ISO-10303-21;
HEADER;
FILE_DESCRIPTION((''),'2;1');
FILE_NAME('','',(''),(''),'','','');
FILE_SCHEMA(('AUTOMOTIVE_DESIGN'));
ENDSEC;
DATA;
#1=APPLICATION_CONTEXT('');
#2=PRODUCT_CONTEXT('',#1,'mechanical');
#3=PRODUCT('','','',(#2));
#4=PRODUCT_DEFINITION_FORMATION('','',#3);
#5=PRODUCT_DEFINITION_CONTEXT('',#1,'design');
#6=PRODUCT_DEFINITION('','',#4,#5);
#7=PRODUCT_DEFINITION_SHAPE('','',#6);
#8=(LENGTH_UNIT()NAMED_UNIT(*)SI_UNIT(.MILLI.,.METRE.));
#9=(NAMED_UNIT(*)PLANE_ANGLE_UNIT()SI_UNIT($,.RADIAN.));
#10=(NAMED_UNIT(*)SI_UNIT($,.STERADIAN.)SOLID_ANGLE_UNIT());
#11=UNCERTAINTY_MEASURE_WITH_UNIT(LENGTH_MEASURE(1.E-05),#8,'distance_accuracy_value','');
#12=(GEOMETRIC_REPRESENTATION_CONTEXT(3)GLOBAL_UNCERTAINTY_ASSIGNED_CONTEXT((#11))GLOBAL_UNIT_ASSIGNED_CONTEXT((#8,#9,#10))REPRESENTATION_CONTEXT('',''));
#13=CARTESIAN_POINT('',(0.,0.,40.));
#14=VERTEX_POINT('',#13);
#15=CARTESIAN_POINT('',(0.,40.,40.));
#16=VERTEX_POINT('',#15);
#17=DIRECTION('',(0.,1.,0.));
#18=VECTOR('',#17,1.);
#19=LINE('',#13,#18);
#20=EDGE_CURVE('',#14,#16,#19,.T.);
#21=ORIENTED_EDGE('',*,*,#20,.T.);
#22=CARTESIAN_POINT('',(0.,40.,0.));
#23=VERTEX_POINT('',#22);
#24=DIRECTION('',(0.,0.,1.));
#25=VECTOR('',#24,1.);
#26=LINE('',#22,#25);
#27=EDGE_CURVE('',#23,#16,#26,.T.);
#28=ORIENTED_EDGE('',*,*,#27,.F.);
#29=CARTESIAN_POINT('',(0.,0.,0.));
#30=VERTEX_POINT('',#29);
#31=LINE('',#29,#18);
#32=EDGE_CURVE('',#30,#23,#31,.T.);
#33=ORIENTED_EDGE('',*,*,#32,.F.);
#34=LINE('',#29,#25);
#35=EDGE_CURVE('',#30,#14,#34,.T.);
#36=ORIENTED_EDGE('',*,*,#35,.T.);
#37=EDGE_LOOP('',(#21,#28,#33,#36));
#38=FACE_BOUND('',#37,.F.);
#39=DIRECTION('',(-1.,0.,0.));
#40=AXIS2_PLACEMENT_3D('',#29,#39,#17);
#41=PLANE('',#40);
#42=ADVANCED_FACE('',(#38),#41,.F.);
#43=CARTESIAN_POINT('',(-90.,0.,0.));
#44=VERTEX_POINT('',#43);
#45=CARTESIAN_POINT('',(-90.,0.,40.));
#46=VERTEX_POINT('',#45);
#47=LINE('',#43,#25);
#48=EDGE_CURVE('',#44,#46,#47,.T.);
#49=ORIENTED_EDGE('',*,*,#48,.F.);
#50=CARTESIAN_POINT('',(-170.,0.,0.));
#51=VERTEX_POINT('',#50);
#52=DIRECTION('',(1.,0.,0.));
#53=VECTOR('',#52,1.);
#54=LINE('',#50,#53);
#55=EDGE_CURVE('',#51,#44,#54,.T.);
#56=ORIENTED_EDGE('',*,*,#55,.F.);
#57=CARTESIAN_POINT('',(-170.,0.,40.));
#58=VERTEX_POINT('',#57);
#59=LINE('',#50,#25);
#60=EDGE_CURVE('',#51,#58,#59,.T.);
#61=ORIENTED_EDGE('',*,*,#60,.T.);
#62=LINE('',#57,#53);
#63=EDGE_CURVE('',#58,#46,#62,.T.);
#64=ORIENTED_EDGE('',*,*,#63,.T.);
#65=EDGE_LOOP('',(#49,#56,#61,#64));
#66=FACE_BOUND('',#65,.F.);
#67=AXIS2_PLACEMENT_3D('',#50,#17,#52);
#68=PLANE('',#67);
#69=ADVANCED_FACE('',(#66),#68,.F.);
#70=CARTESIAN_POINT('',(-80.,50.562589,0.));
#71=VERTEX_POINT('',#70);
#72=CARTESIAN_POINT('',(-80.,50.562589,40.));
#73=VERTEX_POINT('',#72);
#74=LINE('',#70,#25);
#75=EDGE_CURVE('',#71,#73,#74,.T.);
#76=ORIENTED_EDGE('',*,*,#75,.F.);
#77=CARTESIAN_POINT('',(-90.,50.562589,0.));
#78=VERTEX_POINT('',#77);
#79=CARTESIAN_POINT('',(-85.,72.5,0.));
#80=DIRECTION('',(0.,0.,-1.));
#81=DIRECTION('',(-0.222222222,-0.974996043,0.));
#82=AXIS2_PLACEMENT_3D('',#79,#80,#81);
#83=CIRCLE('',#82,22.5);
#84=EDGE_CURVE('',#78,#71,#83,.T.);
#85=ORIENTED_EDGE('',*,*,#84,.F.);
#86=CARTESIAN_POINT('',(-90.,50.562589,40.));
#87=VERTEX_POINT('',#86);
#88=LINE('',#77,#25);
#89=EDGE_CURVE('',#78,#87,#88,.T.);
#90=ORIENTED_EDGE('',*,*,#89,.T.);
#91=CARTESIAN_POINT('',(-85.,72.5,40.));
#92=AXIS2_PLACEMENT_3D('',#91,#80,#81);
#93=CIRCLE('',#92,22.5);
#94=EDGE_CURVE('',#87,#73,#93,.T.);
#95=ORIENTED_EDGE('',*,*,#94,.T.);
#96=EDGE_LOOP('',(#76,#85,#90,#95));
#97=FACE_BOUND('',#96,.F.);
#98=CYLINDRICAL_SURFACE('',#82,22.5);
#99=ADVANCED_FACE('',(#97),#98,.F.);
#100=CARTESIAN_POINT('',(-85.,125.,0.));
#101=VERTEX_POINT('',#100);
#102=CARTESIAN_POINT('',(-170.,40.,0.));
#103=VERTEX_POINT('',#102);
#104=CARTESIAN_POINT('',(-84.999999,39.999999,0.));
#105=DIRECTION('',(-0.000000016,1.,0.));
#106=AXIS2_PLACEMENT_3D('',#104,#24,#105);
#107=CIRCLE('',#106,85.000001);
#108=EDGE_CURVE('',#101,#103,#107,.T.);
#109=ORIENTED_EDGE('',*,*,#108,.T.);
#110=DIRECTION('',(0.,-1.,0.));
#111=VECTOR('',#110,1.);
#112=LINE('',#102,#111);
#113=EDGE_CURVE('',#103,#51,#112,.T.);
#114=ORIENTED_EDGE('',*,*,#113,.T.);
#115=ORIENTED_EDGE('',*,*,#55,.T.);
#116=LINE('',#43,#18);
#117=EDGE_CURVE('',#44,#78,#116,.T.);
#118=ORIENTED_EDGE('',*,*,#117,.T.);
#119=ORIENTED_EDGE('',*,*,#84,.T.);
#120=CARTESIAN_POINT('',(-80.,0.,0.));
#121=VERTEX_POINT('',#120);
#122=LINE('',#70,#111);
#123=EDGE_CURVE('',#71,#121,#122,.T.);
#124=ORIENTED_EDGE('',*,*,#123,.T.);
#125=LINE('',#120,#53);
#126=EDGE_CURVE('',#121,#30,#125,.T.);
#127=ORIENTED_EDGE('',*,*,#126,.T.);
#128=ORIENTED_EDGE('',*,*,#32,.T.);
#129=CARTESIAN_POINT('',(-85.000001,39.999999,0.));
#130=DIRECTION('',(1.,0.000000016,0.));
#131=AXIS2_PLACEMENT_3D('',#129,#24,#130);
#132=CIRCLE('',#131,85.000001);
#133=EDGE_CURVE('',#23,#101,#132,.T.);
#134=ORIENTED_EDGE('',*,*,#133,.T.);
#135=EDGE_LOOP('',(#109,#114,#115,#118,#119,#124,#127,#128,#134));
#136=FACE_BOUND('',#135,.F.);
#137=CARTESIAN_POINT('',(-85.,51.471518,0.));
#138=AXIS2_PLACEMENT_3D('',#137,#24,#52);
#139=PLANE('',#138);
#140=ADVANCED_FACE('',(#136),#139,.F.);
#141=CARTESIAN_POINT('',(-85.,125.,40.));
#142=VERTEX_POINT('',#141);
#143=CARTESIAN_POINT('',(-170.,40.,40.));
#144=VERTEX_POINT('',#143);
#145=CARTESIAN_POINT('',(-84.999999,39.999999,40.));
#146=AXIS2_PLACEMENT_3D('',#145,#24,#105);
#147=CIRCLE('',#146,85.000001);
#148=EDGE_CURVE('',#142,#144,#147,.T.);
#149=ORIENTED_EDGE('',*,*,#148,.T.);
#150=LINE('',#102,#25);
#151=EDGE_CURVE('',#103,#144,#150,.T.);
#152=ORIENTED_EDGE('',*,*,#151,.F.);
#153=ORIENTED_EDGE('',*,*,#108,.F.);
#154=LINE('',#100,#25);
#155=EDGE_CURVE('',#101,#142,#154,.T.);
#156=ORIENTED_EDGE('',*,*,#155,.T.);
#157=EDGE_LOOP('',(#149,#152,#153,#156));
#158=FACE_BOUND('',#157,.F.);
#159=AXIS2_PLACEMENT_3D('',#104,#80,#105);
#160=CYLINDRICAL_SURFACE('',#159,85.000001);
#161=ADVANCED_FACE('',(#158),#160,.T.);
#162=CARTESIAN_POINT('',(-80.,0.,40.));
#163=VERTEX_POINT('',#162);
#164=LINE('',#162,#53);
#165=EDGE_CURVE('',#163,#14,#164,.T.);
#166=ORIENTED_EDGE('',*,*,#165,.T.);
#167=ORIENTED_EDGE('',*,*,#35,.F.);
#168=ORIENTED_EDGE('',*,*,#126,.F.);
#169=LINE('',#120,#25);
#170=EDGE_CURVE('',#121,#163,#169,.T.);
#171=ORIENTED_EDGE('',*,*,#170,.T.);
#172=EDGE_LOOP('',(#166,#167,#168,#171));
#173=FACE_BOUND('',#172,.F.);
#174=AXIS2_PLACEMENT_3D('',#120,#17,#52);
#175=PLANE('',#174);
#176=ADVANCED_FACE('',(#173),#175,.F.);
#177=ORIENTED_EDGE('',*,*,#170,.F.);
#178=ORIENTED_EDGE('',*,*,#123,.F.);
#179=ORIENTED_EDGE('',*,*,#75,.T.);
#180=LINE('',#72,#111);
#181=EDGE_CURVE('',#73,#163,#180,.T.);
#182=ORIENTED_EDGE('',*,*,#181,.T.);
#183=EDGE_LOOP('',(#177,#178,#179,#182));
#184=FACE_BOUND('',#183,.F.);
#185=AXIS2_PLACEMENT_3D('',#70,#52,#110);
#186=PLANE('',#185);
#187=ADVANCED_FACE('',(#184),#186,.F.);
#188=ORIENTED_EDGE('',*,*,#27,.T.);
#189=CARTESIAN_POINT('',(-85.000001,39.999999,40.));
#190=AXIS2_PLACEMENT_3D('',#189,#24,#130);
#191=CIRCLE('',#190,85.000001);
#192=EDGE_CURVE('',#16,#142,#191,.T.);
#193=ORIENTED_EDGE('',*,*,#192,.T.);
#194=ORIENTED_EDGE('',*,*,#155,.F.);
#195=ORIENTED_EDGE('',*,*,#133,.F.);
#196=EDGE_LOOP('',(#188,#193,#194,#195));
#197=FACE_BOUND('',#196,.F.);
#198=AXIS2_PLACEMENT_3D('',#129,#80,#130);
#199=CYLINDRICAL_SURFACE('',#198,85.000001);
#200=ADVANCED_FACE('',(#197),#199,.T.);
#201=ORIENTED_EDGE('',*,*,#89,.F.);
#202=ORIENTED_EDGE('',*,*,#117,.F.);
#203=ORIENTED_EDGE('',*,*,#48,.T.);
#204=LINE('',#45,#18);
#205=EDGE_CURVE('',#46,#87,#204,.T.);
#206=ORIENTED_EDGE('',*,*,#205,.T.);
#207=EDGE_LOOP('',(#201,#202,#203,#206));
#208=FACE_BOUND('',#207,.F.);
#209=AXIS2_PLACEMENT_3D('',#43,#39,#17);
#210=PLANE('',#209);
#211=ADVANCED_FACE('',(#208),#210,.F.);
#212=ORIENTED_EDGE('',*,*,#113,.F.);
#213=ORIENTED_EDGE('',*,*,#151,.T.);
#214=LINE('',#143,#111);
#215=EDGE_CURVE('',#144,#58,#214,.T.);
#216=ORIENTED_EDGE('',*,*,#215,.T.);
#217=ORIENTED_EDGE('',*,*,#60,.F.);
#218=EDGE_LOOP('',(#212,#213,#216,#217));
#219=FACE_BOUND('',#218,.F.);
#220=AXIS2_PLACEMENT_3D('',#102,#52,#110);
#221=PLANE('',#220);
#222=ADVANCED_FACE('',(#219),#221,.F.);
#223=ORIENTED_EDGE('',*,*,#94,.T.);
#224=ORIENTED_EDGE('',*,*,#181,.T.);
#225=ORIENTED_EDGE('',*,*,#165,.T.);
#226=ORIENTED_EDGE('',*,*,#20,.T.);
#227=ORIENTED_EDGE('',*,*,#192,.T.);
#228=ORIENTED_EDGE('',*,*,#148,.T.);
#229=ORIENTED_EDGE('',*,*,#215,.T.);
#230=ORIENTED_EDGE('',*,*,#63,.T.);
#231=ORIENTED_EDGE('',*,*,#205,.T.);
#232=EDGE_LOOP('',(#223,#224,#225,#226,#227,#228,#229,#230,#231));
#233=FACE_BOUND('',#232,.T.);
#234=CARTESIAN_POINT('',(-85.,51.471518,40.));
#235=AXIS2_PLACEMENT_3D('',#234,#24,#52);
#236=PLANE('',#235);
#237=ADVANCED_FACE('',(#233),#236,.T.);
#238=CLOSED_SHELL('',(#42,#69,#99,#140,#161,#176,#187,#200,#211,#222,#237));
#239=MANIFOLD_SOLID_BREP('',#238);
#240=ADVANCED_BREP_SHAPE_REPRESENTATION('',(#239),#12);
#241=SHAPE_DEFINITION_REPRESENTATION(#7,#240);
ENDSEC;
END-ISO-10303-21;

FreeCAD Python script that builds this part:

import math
import FreeCAD as App
import Part
import Sketcher

V = App.Vector

doc = App.newDocument("Part")
body = doc.addObject("PartDesign::Body", "Body")

# Sketch on XY plane
sketch1 = body.newObject("Sketcher::SketchObject", "Sketch")
sketch1.AttachmentSupport = (doc.getObject("XY_Plane"), [""])
sketch1.MapMode = "FlatFace"
sketch1.addGeometry(Part.LineSegment(V(-170, 40, 0), V(-170, 0, 0)), False)
sketch1.addGeometry(Part.LineSegment(V(-170, 0, 0), V(-90, 0, 0)), False)
sketch1.addGeometry(Part.LineSegment(V(-90, 0, 0), V(-90, 51, 0)), False)
sketch1.addGeometry(Part.ArcOfCircle(Part.Circle(V(-85, 72, 0), V(0, 0, 1), 23), math.radians(-77), math.radians(257)), False)
sketch1.addGeometry(Part.LineSegment(V(-80, 51, 0), V(-80, 0, 0)), False)
sketch1.addGeometry(Part.LineSegment(V(-80, 0, 0), V(0, 0, 0)), False)
sketch1.addGeometry(Part.LineSegment(V(0, 0, 0), V(0, 40, 0)), False)
sketch1.addGeometry(Part.ArcOfCircle(Part.Circle(V(-85, 40, 0), V(0, 0, 1), 85), math.radians(0), math.radians(90)), False)
sketch1.addGeometry(Part.ArcOfCircle(Part.Circle(V(-85, 40, 0), V(0, 0, 1), 85), math.radians(90), math.radians(180)), False)
sketch1.addConstraint(Sketcher.Constraint("Coincident", 0, 2, 1, 1))
sketch1.addConstraint(Sketcher.Constraint("Coincident", 1, 2, 2, 1))
sketch1.addConstraint(Sketcher.Constraint("Coincident", 2, 2, 3, 2))
sketch1.addConstraint(Sketcher.Constraint("Coincident", 3, 1, 4, 1))
sketch1.addConstraint(Sketcher.Constraint("Coincident", 4, 2, 5, 1))
sketch1.addConstraint(Sketcher.Constraint("Coincident", 5, 2, 6, 1))
sketch1.addConstraint(Sketcher.Constraint("Tangent", 6, 2, 7, 1))
sketch1.addConstraint(Sketcher.Constraint("Tangent", 7, 2, 8, 1))
sketch1.addConstraint(Sketcher.Constraint("Tangent", 8, 2, 0, 1))
sketch1.addConstraint(Sketcher.Constraint("Vertical", 0))
sketch1.addConstraint(Sketcher.Constraint("Horizontal", 1))
sketch1.addConstraint(Sketcher.Constraint("Vertical", 2))
sketch1.addConstraint(Sketcher.Constraint("Vertical", 4))
sketch1.addConstraint(Sketcher.Constraint("Horizontal", 5))
sketch1.addConstraint(Sketcher.Constraint("Vertical", 6))
sketch1.addConstraint(Sketcher.Constraint("Coincident", 5, 2, -1, 1))
sketch1.addConstraint(Sketcher.Constraint("Equal", 7, 8))
sketch1.addConstraint(Sketcher.Constraint("PointOnObject", 0, 2, -1))
sketch1.addConstraint(Sketcher.Constraint("Horizontal", 2, 2, 3, 1))
sketch1.addConstraint(Sketcher.Constraint("Vertical", 3, 3, 7, 3))
sketch1.addConstraint(Sketcher.Constraint("Vertical", 8, 3, 7, 2))
sketch1.addConstraint(Sketcher.Constraint("Radius", 7, 85.000001))
sketch1.addConstraint(Sketcher.Constraint("Radius", 3, 22.5))
sketch1.addConstraint(Sketcher.Constraint("DistanceX", 1, 1, 1, 2, 80.0))
sketch1.addConstraint(Sketcher.Constraint("DistanceY", 0, 2, 0, 1, 40.0))
sketch1.addConstraint(Sketcher.Constraint("DistanceY", -1, 1, 3, 3, 72.5))
pad1 = body.newObject("PartDesign::Pad", "Pad")
pad1.Profile = sketch1
pad1.Length = 40

doc.recompute()
